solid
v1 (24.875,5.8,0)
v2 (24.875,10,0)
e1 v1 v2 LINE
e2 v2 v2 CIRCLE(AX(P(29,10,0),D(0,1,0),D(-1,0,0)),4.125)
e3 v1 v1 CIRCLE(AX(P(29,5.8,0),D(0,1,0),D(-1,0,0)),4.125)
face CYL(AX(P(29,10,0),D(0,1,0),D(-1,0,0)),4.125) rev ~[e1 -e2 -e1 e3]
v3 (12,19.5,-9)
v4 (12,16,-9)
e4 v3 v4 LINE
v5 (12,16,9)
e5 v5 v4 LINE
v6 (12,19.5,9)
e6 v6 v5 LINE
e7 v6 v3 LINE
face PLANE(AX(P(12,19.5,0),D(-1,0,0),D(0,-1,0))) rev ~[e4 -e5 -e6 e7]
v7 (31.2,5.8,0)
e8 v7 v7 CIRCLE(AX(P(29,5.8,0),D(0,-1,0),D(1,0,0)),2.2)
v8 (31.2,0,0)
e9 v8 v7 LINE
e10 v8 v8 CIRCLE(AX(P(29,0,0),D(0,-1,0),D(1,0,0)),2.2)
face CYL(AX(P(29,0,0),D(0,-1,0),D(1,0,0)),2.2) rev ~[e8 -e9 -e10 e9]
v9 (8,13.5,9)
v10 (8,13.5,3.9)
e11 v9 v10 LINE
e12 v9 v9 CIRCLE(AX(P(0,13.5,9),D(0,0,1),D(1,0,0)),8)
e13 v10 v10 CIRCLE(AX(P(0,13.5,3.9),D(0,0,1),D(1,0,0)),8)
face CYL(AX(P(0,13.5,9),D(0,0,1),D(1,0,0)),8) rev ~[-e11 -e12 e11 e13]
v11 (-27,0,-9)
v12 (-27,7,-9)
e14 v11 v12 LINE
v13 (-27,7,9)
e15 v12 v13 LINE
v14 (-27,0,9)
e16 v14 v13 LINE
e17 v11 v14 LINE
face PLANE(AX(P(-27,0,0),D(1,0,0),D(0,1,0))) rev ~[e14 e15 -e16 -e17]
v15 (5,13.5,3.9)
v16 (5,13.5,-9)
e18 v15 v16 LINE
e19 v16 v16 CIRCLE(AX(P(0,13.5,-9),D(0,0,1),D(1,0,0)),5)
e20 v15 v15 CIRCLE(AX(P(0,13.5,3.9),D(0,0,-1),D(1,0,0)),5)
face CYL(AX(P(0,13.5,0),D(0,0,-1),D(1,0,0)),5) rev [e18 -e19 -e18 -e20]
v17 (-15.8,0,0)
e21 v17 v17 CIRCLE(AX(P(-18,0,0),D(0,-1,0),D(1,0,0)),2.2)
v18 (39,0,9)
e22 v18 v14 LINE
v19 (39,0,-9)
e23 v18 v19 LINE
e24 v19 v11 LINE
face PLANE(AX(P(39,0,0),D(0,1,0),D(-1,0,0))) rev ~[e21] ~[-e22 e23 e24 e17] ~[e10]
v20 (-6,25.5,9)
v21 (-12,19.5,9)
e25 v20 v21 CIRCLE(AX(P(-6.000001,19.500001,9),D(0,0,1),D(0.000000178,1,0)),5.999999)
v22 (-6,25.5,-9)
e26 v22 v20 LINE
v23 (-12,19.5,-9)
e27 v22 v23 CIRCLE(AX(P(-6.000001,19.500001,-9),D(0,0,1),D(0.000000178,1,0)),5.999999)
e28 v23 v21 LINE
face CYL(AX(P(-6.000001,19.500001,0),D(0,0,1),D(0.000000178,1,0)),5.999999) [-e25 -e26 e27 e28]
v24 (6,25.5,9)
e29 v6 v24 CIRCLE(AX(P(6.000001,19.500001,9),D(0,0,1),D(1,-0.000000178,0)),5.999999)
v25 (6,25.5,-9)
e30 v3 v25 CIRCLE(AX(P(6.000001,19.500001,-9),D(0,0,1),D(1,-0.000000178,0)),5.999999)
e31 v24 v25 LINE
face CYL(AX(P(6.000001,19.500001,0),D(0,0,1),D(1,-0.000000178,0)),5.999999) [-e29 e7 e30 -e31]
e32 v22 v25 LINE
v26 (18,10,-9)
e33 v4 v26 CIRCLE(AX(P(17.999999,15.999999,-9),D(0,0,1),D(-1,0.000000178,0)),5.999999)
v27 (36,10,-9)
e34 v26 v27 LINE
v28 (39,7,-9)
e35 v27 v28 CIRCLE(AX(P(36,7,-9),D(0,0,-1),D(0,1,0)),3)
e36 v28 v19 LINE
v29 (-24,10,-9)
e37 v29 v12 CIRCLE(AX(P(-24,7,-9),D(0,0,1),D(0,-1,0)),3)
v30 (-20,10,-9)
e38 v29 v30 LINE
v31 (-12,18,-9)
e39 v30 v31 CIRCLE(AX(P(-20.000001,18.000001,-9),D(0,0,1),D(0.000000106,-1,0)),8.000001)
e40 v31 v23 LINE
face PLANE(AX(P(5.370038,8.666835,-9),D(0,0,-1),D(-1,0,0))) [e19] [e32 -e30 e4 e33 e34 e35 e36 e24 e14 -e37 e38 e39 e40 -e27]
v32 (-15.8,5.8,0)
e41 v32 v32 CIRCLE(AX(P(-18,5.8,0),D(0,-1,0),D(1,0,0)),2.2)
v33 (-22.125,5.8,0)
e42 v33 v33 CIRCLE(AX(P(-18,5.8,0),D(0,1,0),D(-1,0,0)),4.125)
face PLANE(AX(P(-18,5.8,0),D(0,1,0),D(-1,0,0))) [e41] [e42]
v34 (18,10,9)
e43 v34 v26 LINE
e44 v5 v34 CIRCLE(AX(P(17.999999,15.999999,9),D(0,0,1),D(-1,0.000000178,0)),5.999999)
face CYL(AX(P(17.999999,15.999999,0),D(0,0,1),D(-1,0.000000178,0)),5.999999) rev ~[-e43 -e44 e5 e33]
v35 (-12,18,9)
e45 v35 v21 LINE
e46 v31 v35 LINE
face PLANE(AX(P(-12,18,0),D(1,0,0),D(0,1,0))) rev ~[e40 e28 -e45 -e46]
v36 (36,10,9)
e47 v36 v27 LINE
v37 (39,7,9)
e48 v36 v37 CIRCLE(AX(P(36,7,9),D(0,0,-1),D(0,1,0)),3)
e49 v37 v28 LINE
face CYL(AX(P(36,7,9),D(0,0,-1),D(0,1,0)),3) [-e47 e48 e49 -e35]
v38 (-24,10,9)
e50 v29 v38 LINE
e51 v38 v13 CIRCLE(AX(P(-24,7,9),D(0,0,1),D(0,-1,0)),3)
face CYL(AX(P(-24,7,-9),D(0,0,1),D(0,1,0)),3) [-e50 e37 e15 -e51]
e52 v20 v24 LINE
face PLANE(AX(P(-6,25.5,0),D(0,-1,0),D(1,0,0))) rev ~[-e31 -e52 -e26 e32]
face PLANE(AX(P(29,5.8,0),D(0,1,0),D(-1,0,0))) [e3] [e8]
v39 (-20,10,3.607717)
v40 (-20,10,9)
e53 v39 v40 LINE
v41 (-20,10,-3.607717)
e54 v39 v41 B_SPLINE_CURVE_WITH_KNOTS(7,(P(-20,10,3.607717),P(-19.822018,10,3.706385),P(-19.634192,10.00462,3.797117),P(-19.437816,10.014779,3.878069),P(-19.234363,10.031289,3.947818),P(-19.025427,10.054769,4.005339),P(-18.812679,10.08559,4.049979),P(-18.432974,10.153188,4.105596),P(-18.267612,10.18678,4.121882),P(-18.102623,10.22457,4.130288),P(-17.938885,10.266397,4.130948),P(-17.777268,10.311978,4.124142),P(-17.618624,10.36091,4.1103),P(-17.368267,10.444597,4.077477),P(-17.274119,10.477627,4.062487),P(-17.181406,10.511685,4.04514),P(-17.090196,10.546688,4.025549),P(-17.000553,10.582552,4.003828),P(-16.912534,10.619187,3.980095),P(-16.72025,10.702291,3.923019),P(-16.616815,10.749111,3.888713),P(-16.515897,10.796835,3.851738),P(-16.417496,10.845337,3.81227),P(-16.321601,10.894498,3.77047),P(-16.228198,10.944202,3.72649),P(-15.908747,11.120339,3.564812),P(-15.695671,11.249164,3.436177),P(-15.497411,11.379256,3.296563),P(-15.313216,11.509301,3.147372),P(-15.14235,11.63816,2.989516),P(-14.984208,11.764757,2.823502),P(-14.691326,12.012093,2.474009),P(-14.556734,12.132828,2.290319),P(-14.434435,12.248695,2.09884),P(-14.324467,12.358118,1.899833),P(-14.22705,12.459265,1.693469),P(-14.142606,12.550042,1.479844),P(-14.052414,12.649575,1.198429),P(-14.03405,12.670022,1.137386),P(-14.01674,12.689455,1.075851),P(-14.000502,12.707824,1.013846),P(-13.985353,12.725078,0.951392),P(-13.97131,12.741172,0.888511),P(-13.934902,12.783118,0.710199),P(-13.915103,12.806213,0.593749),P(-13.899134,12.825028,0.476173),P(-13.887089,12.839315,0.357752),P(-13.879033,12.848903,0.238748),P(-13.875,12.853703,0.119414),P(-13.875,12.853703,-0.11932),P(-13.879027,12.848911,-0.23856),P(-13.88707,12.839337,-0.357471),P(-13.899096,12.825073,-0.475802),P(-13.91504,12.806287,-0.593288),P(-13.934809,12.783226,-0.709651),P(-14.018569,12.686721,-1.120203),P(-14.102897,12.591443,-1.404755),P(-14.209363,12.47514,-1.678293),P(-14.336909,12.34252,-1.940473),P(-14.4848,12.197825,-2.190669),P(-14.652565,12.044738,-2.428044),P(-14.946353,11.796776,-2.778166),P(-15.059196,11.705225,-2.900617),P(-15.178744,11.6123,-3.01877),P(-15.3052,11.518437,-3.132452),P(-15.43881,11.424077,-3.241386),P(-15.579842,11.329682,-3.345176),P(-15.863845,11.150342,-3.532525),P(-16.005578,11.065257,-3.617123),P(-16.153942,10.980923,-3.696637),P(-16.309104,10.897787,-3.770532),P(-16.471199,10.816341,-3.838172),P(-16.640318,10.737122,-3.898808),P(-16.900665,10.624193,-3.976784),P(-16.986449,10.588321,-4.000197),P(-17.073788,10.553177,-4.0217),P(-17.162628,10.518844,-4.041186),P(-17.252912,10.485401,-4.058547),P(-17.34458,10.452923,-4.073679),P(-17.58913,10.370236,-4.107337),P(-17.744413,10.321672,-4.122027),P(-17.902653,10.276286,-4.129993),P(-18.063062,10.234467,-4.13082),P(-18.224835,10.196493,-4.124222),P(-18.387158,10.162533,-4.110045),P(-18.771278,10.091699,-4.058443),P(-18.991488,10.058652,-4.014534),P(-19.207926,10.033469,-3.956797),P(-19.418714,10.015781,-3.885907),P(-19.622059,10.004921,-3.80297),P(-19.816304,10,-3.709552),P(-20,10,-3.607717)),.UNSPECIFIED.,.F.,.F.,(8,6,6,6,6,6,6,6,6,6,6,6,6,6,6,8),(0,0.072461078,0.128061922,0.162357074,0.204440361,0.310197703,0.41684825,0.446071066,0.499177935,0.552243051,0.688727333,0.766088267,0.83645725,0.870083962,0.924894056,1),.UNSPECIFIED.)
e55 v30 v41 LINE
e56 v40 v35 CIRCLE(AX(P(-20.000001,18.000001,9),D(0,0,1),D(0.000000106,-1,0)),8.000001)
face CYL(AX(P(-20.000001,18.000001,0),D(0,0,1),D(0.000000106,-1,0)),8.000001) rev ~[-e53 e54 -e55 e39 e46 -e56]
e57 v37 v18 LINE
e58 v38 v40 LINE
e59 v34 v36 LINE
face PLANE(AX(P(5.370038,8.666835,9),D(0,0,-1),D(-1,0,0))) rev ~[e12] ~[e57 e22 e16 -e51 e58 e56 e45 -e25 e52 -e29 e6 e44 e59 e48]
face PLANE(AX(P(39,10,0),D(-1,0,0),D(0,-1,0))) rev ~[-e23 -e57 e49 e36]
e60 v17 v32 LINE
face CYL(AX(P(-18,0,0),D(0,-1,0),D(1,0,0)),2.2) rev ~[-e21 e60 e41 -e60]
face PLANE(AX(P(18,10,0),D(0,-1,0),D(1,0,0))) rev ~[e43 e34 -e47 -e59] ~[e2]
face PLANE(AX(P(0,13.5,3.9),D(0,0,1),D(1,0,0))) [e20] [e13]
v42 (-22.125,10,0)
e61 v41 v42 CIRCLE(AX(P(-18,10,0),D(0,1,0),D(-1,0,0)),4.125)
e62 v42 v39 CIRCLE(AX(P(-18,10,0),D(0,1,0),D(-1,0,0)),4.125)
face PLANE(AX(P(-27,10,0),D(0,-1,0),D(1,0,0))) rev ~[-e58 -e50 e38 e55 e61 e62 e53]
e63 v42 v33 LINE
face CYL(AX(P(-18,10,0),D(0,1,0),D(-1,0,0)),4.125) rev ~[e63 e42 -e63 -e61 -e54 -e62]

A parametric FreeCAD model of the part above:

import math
import FreeCAD as App
import Part
import Sketcher
from FreeCAD import Vector


def edges_at(feature, points):
    """Names of the edges that pass closest to the given points."""
    edges = feature.Shape.Edges
    near = lambda p: min(range(len(edges)), key=lambda i: edges[i].distToShape(Part.Vertex(*p))[0])
    return sorted({f"Edge{near(p) + 1}" for p in points})

doc = App.newDocument("Part")
params = doc.addObject("Spreadsheet::Sheet", "Params")
for row, (alias, value) in enumerate([
    ("sketch1_diameter", "10 mm"),
    ("sketch1_radius", "5.999999 mm"),
    ("sketch1_radius2", "8.000001 mm"),
    ("sketch1_width", "12 mm"),
    ("sketch1_width2", "7 mm"),
    ("pad1_length", "18 mm"),
    ("sketch2_diameter", "4.4 mm"),
    ("sketch3_diameter", "16 mm"),
    ("pocket2_length", "5.1 mm"),
    ("sketch4_diameter", "8.25 mm"),
    ("pocket3_length", "8.4 mm"),
    ("fillet_radius", "3 mm"),
], start=1):
    params.set(f"A{row}", alias)
    params.set(f"B{row}", "=" + value)
    params.setAlias(f"B{row}", alias)

body = doc.addObject("PartDesign::Body", "Body")

# Sketch on XY plane
sketch1 = doc.addObject("Sketcher::SketchObject", "Sketch")
body.addObject(sketch1)
sketch1.AttachmentSupport = (doc.XY_Plane, [""])
sketch1.MapMode = "FlatFace"
sketch1.addGeometry([
    Part.LineSegment(Vector(6, 25.5, 0), Vector(-6, 25.5, 0)),  # 0
    Part.ArcOfCircle(Part.Circle(Vector(-6, 19.5, 0), Vector(0, 0, 1), 6), math.radians(90), math.radians(180)),  # 1
    Part.LineSegment(Vector(-12, 19.5, 0), Vector(-12, 18, 0)),  # 2
    Part.ArcOfCircle(Part.Circle(Vector(-20, 18, 0), Vector(0, 0, 1), 8), math.radians(-90), math.radians(0)),  # 3
    Part.LineSegment(Vector(-20, 10, 0), Vector(-27, 10, 0)),  # 4
    Part.LineSegment(Vector(-27, 10, 0), Vector(-27, 0, 0)),  # 5
    Part.LineSegment(Vector(-27, 0, 0), Vector(39, 0, 0)),  # 6
    Part.LineSegment(Vector(39, 0, 0), Vector(39, 10, 0)),  # 7
    Part.LineSegment(Vector(39, 10, 0), Vector(18, 10, 0)),  # 8
    Part.ArcOfCircle(Part.Circle(Vector(18, 16, 0), Vector(0, 0, 1), 6), math.radians(180), math.radians(270)),  # 9
    Part.LineSegment(Vector(12, 16, 0), Vector(12, 19.5, 0)),  # 10
    Part.ArcOfCircle(Part.Circle(Vector(6, 19.5, 0), Vector(0, 0, 1), 6), math.radians(0), math.radians(90)),  # 11
    Part.Circle(Vector(0, 13.5, 0), Vector(0, 0, 1), 5),  # 12
], False)
sketch1.addConstraint([
    Sketcher.Constraint("Tangent", 0, 2, 1, 1),
    Sketcher.Constraint("Tangent", 1, 2, 2, 1),
    Sketcher.Constraint("Tangent", 2, 2, 3, 2),
    Sketcher.Constraint("Tangent", 3, 1, 4, 1),
    Sketcher.Constraint("Coincident", 4, 2, 5, 1),
    Sketcher.Constraint("Coincident", 5, 2, 6, 1),
    Sketcher.Constraint("Coincident", 6, 2, 7, 1),
    Sketcher.Constraint("Coincident", 7, 2, 8, 1),
    Sketcher.Constraint("Tangent", 8, 2, 9, 2),
    Sketcher.Constraint("Tangent", 9, 1, 10, 1),
    Sketcher.Constraint("Tangent", 10, 2, 11, 1),
    Sketcher.Constraint("Tangent", 11, 2, 0, 1),
    Sketcher.Constraint("Horizontal", 0),
    Sketcher.Constraint("Vertical", 2),
    Sketcher.Constraint("Horizontal", 4),
    Sketcher.Constraint("Vertical", 5),
    Sketcher.Constraint("Horizontal", 6),
    Sketcher.Constraint("Vertical", 7),
    Sketcher.Constraint("Horizontal", 8),
    Sketcher.Constraint("Vertical", 10),
    Sketcher.Constraint("Equal", 1, 9),
    Sketcher.Constraint("Equal", 9, 11),
    Sketcher.Constraint("PointOnObject", 12, 3, -2),
    Sketcher.Constraint("PointOnObject", 5, 2, -1),
    Sketcher.Constraint("Horizontal", 4, 2, 7, 2),
    Sketcher.Constraint("Diameter", 12, 10.0),
    Sketcher.Constraint("Radius", 1, 5.999999),
    Sketcher.Constraint("Radius", 3, 8.000001),
    Sketcher.Constraint("DistanceX", 0, 2, 0, 1, 12.0),
    Sketcher.Constraint("DistanceX", 4, 2, 4, 1, 7.0),
    Sketcher.Constraint("DistanceX", 6, 1, 6, 2, 66.0),
    Sketcher.Constraint("DistanceY", 5, 2, 5, 1, 10.0),
    Sketcher.Constraint("DistanceY", 2, 2, 2, 1, 1.5),
    Sketcher.Constraint("DistanceX", 1, 3, -1, 1, 6.000001),
    Sketcher.Constraint("DistanceY", 12, 3, 1, 3, 6.000001),
])
sketch1.setExpression("Constraints[25]", "Params.sketch1_diameter")
sketch1.setExpression("Constraints[26]", "Params.sketch1_radius")
sketch1.setExpression("Constraints[27]", "Params.sketch1_radius2")
sketch1.setExpression("Constraints[28]", "Params.sketch1_width")
sketch1.setExpression("Constraints[29]", "Params.sketch1_width2")
pad1 = doc.addObject("PartDesign::Pad", "Pad")
body.addObject(pad1)
pad1.Profile = sketch1
pad1.setExpression("Length", "Params.pad1_length")
pad1.Midplane = True

# Sketch on XZ plane
sketch2 = doc.addObject("Sketcher::SketchObject", "Sketch001")
body.addObject(sketch2)
sketch2.AttachmentSupport = (doc.XZ_Plane, [""])
sketch2.MapMode = "FlatFace"
sketch2.addGeometry([
    Part.Circle(Vector(29, 0, 0), Vector(0, 0, 1), 2.2),
    Part.Circle(Vector(-18, 0, 0), Vector(0, 0, 1), 2.2),
], False)
sketch2.addConstraint([
    Sketcher.Constraint("Equal", 0, 1),
    Sketcher.Constraint("PointOnObject", 0, 3, -1),
    Sketcher.Constraint("PointOnObject", 1, 3, -1),
    Sketcher.Constraint("Diameter", 0, 4.4),
    Sketcher.Constraint("DistanceX", -1, 1, 0, 3, 29.0),
    Sketcher.Constraint("DistanceX", 1, 3, -1, 1, 18.0),
])
sketch2.setExpression("Constraints[3]", "Params.sketch2_diameter")
pocket1 = doc.addObject("PartDesign::Pocket", "Pocket")
body.addObject(pocket1)
pocket1.Profile = sketch2
pocket1.Type = "ThroughAll"

# Sketch on XY plane
sketch3 = doc.addObject("Sketcher::SketchObject", "Sketch002")
body.addObject(sketch3)
sketch3.AttachmentSupport = (doc.XY_Plane, [""])
sketch3.MapMode = "FlatFace"
sketch3.AttachmentOffset = App.Placement(Vector(0, 0, 9), App.Rotation())
sketch3.addGeometry(Part.Circle(Vector(0, 14, 0), Vector(0, 0, 1), 8), False)
sketch3.addConstraint([
    Sketcher.Constraint("PointOnObject", 0, 3, -2),
    Sketcher.Constraint("Diameter", 0, 16.0),
    Sketcher.Constraint("DistanceY", -1, 1, 0, 3, 13.5),
])
sketch3.setExpression("Constraints[1]", "Params.sketch3_diameter")
pocket2 = doc.addObject("PartDesign::Pocket", "Pocket001")
body.addObject(pocket2)
pocket2.Profile = sketch3
pocket2.setExpression("Length", "Params.pocket2_length")

# Sketch on XZ plane
sketch4 = doc.addObject("Sketcher::SketchObject", "Sketch003")
body.addObject(sketch4)
sketch4.AttachmentSupport = (doc.XZ_Plane, [""])
sketch4.MapMode = "FlatFace"
sketch4.AttachmentOffset = App.Placement(Vector(0, 0, -10), App.Rotation())
sketch4.addGeometry([
    Part.Circle(Vector(-18, 0, 0), Vector(0, 0, 1), 4.1),
    Part.Circle(Vector(29, 0, 0), Vector(0, 0, 1), 4.1),
], False)
sketch4.addConstraint([
    Sketcher.Constraint("Equal", 0, 1),
    Sketcher.Constraint("PointOnObject", 0, 3, -1),
    Sketcher.Constraint("PointOnObject", 1, 3, -1),
    Sketcher.Constraint("Diameter", 0, 8.25),
    Sketcher.Constraint("DistanceX", 0, 3, -1, 1, 18.0),
    Sketcher.Constraint("DistanceX", -1, 1, 1, 3, 29.0),
])
sketch4.setExpression("Constraints[3]", "Params.sketch4_diameter")
pocket3 = doc.addObject("PartDesign::Pocket", "Pocket002")
body.addObject(pocket3)
pocket3.Profile = sketch4
pocket3.setExpression("Length", "Params.pocket3_length")
pocket3.Midplane = True
doc.recompute()

fillet = doc.addObject("PartDesign::Fillet", "Fillet")
body.addObject(fillet)
fillet.Base = (pocket3, edges_at(pocket3, [(39, 10, 0), (-27, 10, 0)]))
fillet.setExpression("Radius", "Params.fillet_radius")

doc.recompute()
